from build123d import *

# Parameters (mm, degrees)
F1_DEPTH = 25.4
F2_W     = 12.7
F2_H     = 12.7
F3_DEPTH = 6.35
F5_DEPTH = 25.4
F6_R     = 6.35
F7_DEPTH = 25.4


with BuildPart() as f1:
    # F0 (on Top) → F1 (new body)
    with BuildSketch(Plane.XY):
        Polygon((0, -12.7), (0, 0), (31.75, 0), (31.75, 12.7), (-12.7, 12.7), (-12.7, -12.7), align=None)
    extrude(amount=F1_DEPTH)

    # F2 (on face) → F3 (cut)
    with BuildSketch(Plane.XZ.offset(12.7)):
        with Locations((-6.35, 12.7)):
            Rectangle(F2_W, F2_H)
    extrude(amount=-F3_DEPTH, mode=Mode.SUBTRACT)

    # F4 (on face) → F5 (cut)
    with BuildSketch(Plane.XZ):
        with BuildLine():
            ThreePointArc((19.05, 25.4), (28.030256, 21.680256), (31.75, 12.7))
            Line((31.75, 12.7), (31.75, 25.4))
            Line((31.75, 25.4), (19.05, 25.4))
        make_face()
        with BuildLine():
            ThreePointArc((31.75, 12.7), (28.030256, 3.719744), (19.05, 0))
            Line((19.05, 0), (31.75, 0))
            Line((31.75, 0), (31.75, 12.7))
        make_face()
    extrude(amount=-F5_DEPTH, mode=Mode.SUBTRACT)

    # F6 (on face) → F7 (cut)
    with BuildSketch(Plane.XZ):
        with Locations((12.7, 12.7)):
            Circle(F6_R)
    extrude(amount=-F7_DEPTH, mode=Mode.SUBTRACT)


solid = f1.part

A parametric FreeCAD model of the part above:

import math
import FreeCAD as App
import Part
import Sketcher

V = App.Vector
Q = App.Units.Quantity


def add_polygon(sketch, points):
    """Adds a closed chain of lines whose ends are joined by coincident constraints."""
    first, n = sketch.GeometryCount, len(points)
    for a, b in zip(points, points[1:] + points[:1]):
        sketch.addGeometry(Part.LineSegment(App.Vector(*a, 0), App.Vector(*b, 0)), False)
    for i in range(n):
        sketch.addConstraint(Sketcher.Constraint("Coincident", first + i, 2, first + (i + 1) % n, 1))

doc = App.newDocument("Part")
body = doc.addObject("PartDesign::Body", "Body")

# Sketch on XY plane
sketch1 = body.newObject("Sketcher::SketchObject", "Sketch")
sketch1.AttachmentSupport = (doc.getObject("XY_Plane"), [""])
sketch1.MapMode = "FlatFace"
add_polygon(sketch1, [(0, -13), (0, 0), (32, 0), (32, 13), (-13, 13), (-13, -13)])  # lines 0-5
sketch1.addConstraint([
    Sketcher.Constraint("Vertical", 0),
    Sketcher.Constraint("Horizontal", 1),
    Sketcher.Constraint("Vertical", 2),
    Sketcher.Constraint("Horizontal", 3),
    Sketcher.Constraint("Vertical", 4),
    Sketcher.Constraint("Horizontal", 5),
    Sketcher.Constraint("Coincident", 0, 2, -1, 1),
    Sketcher.Constraint("Equal", 5, 0),
    Sketcher.Constraint("Equal", 0, 2),
    Sketcher.Constraint("DistanceY", 4, 2, 4, 1, Q("1 in")),
    Sketcher.Constraint("DistanceX", 1, 1, 1, 2, Q("1.25 in")),
])
pad1 = body.newObject("PartDesign::Pad", "Pad")
pad1.Profile = sketch1
pad1.Length = Q("1 in")

# Sketch on XZ plane
sketch2 = body.newObject("Sketcher::SketchObject", "Sketch001")
sketch2.AttachmentSupport = (doc.getObject("XZ_Plane"), [""])
sketch2.MapMode = "FlatFace"
sketch2.AttachmentOffset = App.Placement(V(0, 0, 0.5 * 25.4), App.Rotation())
add_polygon(sketch2, [(-13, 19), (-13, 6), (0, 6), (0, 19)])  # lines 0-3
sketch2.addConstraint([
    Sketcher.Constraint("Vertical", 0),
    Sketcher.Constraint("Horizontal", 1),
    Sketcher.Constraint("Vertical", 2),
    Sketcher.Constraint("Horizontal", 3),
    Sketcher.Constraint("PointOnObject", 1, 2, -2),
    Sketcher.Constraint("Equal", 3, 0),
    Sketcher.Constraint("DistanceX", 1, 1, 1, 2, Q("0.5 in")),
    Sketcher.Constraint("DistanceY", -1, 1, 0, 2, Q("0.25 in")),
])
pocket1 = body.newObject("PartDesign::Pocket", "Pocket")
pocket1.Profile = sketch2
pocket1.Length = Q("0.25 in")

# Sketch on XZ plane
sketch3 = body.newObject("Sketcher::SketchObject", "Sketch002")
sketch3.AttachmentSupport = (doc.getObject("XZ_Plane"), [""])
sketch3.MapMode = "FlatFace"
sketch3.addGeometry([
    Part.ArcOfCircle(Part.Circle(V(19, 13, 0), V(0, 0, 1), 13), math.radians(0), math.radians(90)),  # 0
    Part.LineSegment(V(32, 13, 0), V(32, 25, 0)),  # 1
    Part.LineSegment(V(32, 25, 0), V(19, 25, 0)),  # 2
    Part.ArcOfCircle(Part.Circle(V(19, 13, 0), V(0, 0, 1), 13), math.radians(-90), math.radians(0)),  # 3
    Part.LineSegment(V(19, 0, 0), V(32, 0, 0)),  # 4
    Part.LineSegment(V(32, 0, 0), V(32, 13, 0)),  # 5
], False)
sketch3.addConstraint([
    Sketcher.Constraint("Tangent", 0, 1, 1, 1),
    Sketcher.Constraint("Coincident", 1, 2, 2, 1),
    Sketcher.Constraint("Tangent", 2, 2, 0, 2),
    Sketcher.Constraint("Tangent", 3, 1, 4, 1),
    Sketcher.Constraint("Coincident", 4, 2, 5, 1),
    Sketcher.Constraint("Tangent", 5, 2, 3, 2),
    Sketcher.Constraint("Vertical", 1),
    Sketcher.Constraint("Horizontal", 2),
    Sketcher.Constraint("Horizontal", 4),
    Sketcher.Constraint("Vertical", 5),
    Sketcher.Constraint("Coincident", 3, 3, 0, 3),
    Sketcher.Constraint("Equal", 0, 3),
    Sketcher.Constraint("PointOnObject", 3, 1, -1),
    Sketcher.Constraint("Radius", 0, Q("0.5 in")),
    Sketcher.Constraint("DistanceX", -1, 1, 0, 3, Q("0.75 in")),
])
pocket2 = body.newObject("PartDesign::Pocket", "Pocket001")
pocket2.Profile = sketch3
pocket2.Length = Q("1 in")

# Sketch on XZ plane
sketch4 = body.newObject("Sketcher::SketchObject", "Sketch003")
sketch4.AttachmentSupport = (doc.getObject("XZ_Plane"), [""])
sketch4.MapMode = "FlatFace"
sketch4.addGeometry(Part.Circle(V(13, 13, 0), V(0, 0, 1), 6), False)
sketch4.addConstraint([
    Sketcher.Constraint("Diameter", 0, Q("0.5 in")),
    Sketcher.Constraint("DistanceX", -1, 1, 0, 3, Q("0.5 in")),
    Sketcher.Constraint("DistanceY", -1, 1, 0, 3, Q("0.5 in")),
])
pocket3 = body.newObject("PartDesign::Pocket", "Pocket002")
pocket3.Profile = sketch4
pocket3.Length = Q("1 in")

doc.recompute()
